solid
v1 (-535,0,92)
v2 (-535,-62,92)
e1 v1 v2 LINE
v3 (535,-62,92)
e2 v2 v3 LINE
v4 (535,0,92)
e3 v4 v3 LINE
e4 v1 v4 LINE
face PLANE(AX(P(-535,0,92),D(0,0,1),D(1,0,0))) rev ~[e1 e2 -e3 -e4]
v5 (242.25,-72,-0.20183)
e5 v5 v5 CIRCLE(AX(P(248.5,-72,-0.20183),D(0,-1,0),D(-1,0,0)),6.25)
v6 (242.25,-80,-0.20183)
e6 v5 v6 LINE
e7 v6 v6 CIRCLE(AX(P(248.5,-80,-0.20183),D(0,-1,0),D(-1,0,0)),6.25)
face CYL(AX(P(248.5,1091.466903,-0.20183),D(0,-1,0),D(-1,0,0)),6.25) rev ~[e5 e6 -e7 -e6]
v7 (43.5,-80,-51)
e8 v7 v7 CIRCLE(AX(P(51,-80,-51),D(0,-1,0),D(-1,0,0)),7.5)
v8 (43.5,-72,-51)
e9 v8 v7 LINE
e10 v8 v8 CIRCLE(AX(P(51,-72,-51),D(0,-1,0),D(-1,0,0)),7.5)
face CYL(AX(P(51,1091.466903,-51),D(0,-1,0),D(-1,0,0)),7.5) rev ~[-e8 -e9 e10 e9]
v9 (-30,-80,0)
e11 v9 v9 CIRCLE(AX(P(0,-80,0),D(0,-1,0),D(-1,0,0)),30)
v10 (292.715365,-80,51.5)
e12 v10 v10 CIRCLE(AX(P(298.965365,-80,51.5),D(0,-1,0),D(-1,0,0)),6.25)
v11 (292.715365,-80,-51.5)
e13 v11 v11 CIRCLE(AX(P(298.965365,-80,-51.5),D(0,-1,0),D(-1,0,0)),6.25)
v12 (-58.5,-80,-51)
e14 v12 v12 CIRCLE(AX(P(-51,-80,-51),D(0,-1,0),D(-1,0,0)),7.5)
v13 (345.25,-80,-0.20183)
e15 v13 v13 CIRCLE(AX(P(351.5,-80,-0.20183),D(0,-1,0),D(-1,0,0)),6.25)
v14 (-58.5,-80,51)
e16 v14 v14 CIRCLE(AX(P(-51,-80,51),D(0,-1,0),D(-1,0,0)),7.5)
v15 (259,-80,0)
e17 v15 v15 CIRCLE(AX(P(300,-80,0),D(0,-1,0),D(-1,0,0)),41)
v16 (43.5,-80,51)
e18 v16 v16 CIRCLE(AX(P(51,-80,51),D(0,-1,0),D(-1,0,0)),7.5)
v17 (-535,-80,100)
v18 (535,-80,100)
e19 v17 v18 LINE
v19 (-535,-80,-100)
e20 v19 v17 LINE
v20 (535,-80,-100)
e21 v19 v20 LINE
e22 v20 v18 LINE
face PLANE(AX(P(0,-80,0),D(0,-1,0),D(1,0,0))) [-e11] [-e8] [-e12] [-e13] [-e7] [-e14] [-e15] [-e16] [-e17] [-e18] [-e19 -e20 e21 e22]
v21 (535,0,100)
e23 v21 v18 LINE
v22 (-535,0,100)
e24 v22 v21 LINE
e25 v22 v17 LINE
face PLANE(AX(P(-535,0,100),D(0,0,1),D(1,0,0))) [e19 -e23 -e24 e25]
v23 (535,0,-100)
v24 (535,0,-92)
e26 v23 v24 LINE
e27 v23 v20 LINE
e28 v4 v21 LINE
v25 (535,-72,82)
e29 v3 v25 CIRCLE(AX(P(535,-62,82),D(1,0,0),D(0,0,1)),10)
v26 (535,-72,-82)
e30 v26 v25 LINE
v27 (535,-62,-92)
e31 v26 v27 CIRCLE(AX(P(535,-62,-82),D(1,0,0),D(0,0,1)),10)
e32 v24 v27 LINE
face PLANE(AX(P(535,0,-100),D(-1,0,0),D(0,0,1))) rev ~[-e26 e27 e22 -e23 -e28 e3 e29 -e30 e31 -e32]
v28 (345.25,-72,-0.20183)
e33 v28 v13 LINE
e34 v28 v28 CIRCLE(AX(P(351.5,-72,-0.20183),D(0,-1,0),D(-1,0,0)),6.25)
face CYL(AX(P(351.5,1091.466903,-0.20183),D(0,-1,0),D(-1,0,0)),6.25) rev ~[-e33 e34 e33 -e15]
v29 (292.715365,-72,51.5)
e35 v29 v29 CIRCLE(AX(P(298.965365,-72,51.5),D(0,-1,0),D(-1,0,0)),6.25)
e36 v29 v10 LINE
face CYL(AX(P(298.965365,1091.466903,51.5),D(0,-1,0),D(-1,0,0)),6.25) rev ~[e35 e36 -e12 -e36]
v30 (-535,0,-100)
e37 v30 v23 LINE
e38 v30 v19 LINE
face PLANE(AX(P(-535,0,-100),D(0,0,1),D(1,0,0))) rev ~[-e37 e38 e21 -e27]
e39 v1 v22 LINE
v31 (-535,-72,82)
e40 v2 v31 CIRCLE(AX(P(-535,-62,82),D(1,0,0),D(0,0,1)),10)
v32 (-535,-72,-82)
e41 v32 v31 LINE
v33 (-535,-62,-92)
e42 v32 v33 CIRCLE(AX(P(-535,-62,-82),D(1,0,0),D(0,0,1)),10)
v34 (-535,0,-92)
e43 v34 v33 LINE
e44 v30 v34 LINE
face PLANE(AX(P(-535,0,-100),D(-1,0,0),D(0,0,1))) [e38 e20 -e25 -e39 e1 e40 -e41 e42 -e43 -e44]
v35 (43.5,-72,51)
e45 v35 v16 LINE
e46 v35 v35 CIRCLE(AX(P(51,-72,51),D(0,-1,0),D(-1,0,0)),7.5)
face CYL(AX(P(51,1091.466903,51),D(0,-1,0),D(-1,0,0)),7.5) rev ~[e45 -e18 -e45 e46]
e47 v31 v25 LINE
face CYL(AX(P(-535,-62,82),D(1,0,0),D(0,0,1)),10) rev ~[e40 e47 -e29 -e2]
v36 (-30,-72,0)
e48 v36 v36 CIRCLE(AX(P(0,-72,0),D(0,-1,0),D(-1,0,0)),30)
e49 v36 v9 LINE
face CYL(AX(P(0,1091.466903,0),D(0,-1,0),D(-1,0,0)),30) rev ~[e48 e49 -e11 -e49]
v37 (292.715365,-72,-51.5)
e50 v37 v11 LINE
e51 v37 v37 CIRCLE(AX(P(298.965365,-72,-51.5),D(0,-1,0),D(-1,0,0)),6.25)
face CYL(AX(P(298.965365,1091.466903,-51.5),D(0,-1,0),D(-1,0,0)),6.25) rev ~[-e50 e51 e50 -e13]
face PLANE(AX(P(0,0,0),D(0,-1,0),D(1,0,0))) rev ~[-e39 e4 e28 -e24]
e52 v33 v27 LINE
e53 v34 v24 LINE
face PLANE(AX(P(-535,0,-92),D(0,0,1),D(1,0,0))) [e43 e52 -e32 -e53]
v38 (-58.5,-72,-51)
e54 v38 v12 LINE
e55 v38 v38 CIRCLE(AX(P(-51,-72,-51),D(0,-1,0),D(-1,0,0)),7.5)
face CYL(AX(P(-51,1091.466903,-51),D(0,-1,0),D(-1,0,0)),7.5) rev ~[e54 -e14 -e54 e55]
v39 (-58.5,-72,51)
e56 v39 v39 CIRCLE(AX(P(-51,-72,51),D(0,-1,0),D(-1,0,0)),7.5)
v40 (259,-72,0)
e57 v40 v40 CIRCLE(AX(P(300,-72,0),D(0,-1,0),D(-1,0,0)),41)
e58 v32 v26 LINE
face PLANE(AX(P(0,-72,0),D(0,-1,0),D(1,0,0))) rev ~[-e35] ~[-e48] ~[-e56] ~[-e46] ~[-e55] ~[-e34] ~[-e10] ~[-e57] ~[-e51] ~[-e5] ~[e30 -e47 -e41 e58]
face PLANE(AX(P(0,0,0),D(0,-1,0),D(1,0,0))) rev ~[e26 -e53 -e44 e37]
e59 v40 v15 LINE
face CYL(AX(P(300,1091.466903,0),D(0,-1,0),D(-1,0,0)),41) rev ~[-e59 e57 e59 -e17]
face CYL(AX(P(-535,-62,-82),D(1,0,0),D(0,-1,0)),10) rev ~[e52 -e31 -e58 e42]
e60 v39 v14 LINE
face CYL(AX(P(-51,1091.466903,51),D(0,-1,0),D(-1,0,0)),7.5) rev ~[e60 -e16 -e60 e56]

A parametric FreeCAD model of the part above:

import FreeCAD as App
import Part
import Sketcher

V = App.Vector
Q = App.Units.Quantity


def edges_at(feature, points):
    """Names of the edges that pass closest to the given points."""
    edges = feature.Shape.Edges
    near = lambda p: min(range(len(edges)), key=lambda i: edges[i].distToShape(Part.Vertex(*p))[0])
    return sorted({f"Edge{near(p) + 1}" for p in points})


def faces_at(feature, points):
    """Names of the faces that lie closest to the given points."""
    faces = feature.Shape.Faces
    near = lambda p: min(range(len(faces)), key=lambda i: faces[i].distToShape(Part.Vertex(*p))[0])
    return sorted({f"Face{near(p) + 1}" for p in points})


def add_polygon(sketch, points):
    """Adds a closed chain of lines whose ends are joined by coincident constraints."""
    first, n = sketch.GeometryCount, len(points)
    for a, b in zip(points, points[1:] + points[:1]):
        sketch.addGeometry(Part.LineSegment(App.Vector(*a, 0), App.Vector(*b, 0)), False)
    for i in range(n):
        sketch.addConstraint(Sketcher.Constraint("Coincident", first + i, 2, first + (i + 1) % n, 1))

doc = App.newDocument("Part")
body = doc.addObject("PartDesign::Body", "Body")

# Sketch on XZ plane
sketch1 = body.newObject("Sketcher::SketchObject", "Sketch")
sketch1.AttachmentSupport = (doc.getObject("XZ_Plane"), [""])
sketch1.MapMode = "FlatFace"
add_polygon(sketch1, [(-535, 100), (-535, -100), (535, -100), (535, 100)])  # lines 0-3
sketch1.addConstraint(Sketcher.Constraint("Vertical", 0))
sketch1.addConstraint(Sketcher.Constraint("Horizontal", 1))
sketch1.addConstraint(Sketcher.Constraint("Vertical", 2))
sketch1.addConstraint(Sketcher.Constraint("Horizontal", 3))
sketch1.addConstraint(Sketcher.Constraint("Symmetric", 0, 2, 2, 2, -1, 1))
sketch1.addConstraint(Sketcher.Constraint("DistanceX", 1, 1, 1, 2, Q("1070 mm")))
sketch1.addConstraint(Sketcher.Constraint("DistanceY", 0, 2, 0, 1, Q("200 mm")))
pad1 = body.newObject("PartDesign::Pad", "Pad")
pad1.Profile = sketch1
pad1.Length = 80
doc.recompute()

thickness = body.newObject("PartDesign::Thickness", "Thickness")
thickness.Base = (pad1, faces_at(pad1, [(0, 0, 0), (-535, -40, 0), (535, -40, 0)]))
thickness.Value = 8
thickness.Reversed = True
thickness.Join = "Arc"

# Sketch on XZ plane
sketch2 = body.newObject("Sketcher::SketchObject", "Sketch001")
sketch2.AttachmentSupport = (doc.getObject("XZ_Plane"), [""])
sketch2.MapMode = "FlatFace"
sketch2.addGeometry(Part.Circle(V(0, 0, 0), V(0, 0, 1), 30), False)
sketch2.addConstraint(Sketcher.Constraint("Coincident", 0, 3, -1, 1))
sketch2.addConstraint(Sketcher.Constraint("Diameter", 0, Q("60 mm")))
doc.recompute()
hole = body.newObject("PartDesign::Hole", "Hole")
hole.Profile = sketch2
hole.ThreadType = "None"
hole.Diameter = 60
hole.DepthType = "ThroughAll"
hole.Reversed = True
doc.recompute()

fillet = body.newObject("PartDesign::Fillet", "Fillet")
fillet.Base = (hole, edges_at(hole, [(0, -72, -92), (0, -72, 92)]))
fillet.Radius = 10

# Sketch on XZ plane
sketch3 = body.newObject("Sketcher::SketchObject", "Sketch002")
sketch3.AttachmentSupport = (doc.getObject("XZ_Plane"), [""])
sketch3.MapMode = "FlatFace"
sketch3.addGeometry(Part.Circle(V(-51, 51, 0), V(0, 0, 1), 8), False)
sketch3.addGeometry(Part.Circle(V(51, 51, 0), V(0, 0, 1), 8), False)
sketch3.addGeometry(Part.Circle(V(51, -51, 0), V(0, 0, 1), 8), False)
sketch3.addGeometry(Part.Circle(V(-51, -51, 0), V(0, 0, 1), 8), False)
sketch3.addConstraint(Sketcher.Constraint("Equal", 0, 1))
sketch3.addConstraint(Sketcher.Constraint("Equal", 1, 2))
sketch3.addConstraint(Sketcher.Constraint("Equal", 2, 3))
sketch3.addConstraint(Sketcher.Constraint("Symmetric", 0, 3, 2, 3, -1, 1))
sketch3.addConstraint(Sketcher.Constraint("Symmetric", 1, 3, 3, 3, -1, 1))
sketch3.addConstraint(Sketcher.Constraint("Symmetric", 0, 3, 1, 3, -2))
sketch3.addConstraint(Sketcher.Constraint("Diameter", 0, Q("15 mm")))
sketch3.addConstraint(Sketcher.Constraint("DistanceX", 0, 3, -1, 1, Q("51 mm")))
sketch3.addConstraint(Sketcher.Constraint("DistanceY", -1, 1, 0, 3, Q("51 mm")))
doc.recompute()
hole2 = body.newObject("PartDesign::Hole", "Hole001")
hole2.Profile = sketch3
hole2.ThreadType = "None"
hole2.Diameter = 15
hole2.DepthType = "ThroughAll"
hole2.Reversed = True

# Sketch on XZ plane
sketch4 = body.newObject("Sketcher::SketchObject", "Sketch003")
sketch4.AttachmentSupport = (doc.getObject("XZ_Plane"), [""])
sketch4.MapMode = "FlatFace"
sketch4.addGeometry(Part.Circle(V(300, 0, 0), V(0, 0, 1), 41), False)
sketch4.addConstraint(Sketcher.Constraint("PointOnObject", 0, 3, -1))
sketch4.addConstraint(Sketcher.Constraint("Diameter", 0, Q("82 mm")))
sketch4.addConstraint(Sketcher.Constraint("DistanceX", -1, 1, 0, 3, Q("300 mm")))
doc.recompute()
hole3 = body.newObject("PartDesign::Hole", "Hole002")
hole3.Profile = sketch4
hole3.ThreadType = "None"
hole3.Diameter = 82
hole3.DepthType = "ThroughAll"
hole3.Reversed = True

# Sketch on XZ plane
sketch5 = body.newObject("Sketcher::SketchObject", "Sketch004")
sketch5.AttachmentSupport = (doc.getObject("XZ_Plane"), [""])
sketch5.MapMode = "FlatFace"
sketch5.addGeometry(Part.Circle(V(248, 0, 0), V(0, 0, 1), 6), False)
sketch5.addGeometry(Part.Circle(V(299, 52, 0), V(0, 0, 1), 6), False)
sketch5.addGeometry(Part.Circle(V(352, 0, 0), V(0, 0, 1), 6), False)
sketch5.addGeometry(Part.Circle(V(299, -52, 0), V(0, 0, 1), 6), False)
sketch5.addConstraint(Sketcher.Constraint("Equal", 0, 1))
sketch5.addConstraint(Sketcher.Constraint("Equal", 1, 2))
sketch5.addConstraint(Sketcher.Constraint("Equal", 2, 3))
sketch5.addConstraint(Sketcher.Constraint("Symmetric", 1, 3, 3, 3, -1))
sketch5.addConstraint(Sketcher.Constraint("Horizontal", 0, 3, 2, 3))
sketch5.addConstraint(Sketcher.Constraint("Diameter", 0, Q("12.5 mm")))
sketch5.addConstraint(Sketcher.Constraint("DistanceX", 0, 3, 2, 3, Q("103 mm")))
sketch5.addConstraint(Sketcher.Constraint("DistanceY", 3, 3, 1, 3, Q("103 mm")))
sketch5.addConstraint(Sketcher.Constraint("DistanceX", -1, 1, 0, 3, Q("248.5 mm")))
sketch5.addConstraint(Sketcher.Constraint("DistanceY", 0, 3, -1, 1, Q("0.20183 mm")))
sketch5.addConstraint(Sketcher.Constraint("DistanceX", -1, 1, 1, 3, Q("298.965365 mm")))
doc.recompute()
hole4 = body.newObject("PartDesign::Hole", "Hole003")
hole4.Profile = sketch5
hole4.ThreadType = "None"
hole4.Diameter = 12.5
hole4.DepthType = "ThroughAll"
hole4.Reversed = True

doc.recompute()
